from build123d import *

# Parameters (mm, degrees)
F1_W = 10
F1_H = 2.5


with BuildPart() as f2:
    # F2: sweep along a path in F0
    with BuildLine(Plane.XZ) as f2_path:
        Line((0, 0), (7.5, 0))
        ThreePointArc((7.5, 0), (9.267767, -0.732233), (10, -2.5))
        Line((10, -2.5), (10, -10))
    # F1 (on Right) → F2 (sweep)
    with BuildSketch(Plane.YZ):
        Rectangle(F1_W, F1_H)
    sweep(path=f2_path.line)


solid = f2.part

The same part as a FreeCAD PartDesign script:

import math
import FreeCAD as App
import Part
import Sketcher

V = App.Vector
Q = App.Units.Quantity


def add_polygon(sketch, points):
    """Adds a closed chain of lines whose ends are joined by coincident constraints."""
    first, n = sketch.GeometryCount, len(points)
    for a, b in zip(points, points[1:] + points[:1]):
        sketch.addGeometry(Part.LineSegment(App.Vector(*a, 0), App.Vector(*b, 0)), False)
    for i in range(n):
        sketch.addConstraint(Sketcher.Constraint("Coincident", first + i, 2, first + (i + 1) % n, 1))

doc = App.newDocument("Part")
body = doc.addObject("PartDesign::Body", "Body")

# Sketch on YZ plane
sketch1 = body.newObject("Sketcher::SketchObject", "Sketch")
sketch1.AttachmentSupport = (doc.getObject("YZ_Plane"), [""])
sketch1.MapMode = "FlatFace"
add_polygon(sketch1, [(-5, 1.2), (-5, -1.2), (5, -1.2), (5, 1.2)])  # lines 0-3
sketch1.addConstraint([
    Sketcher.Constraint("Vertical", 0),
    Sketcher.Constraint("Horizontal", 1),
    Sketcher.Constraint("Vertical", 2),
    Sketcher.Constraint("Horizontal", 3),
    Sketcher.Constraint("Symmetric", 0, 2, 2, 2, -1, 1),
    Sketcher.Constraint("DistanceX", 1, 1, 1, 2, Q("10 mm")),
    Sketcher.Constraint("DistanceY", 0, 2, 0, 1, Q("2.5 mm")),
])

# Sketch on XZ plane
sketch2 = body.newObject("Sketcher::SketchObject", "Sketch001")
sketch2.AttachmentSupport = (doc.getObject("XZ_Plane"), [""])
sketch2.MapMode = "FlatFace"
sketch2.addGeometry([
    Part.LineSegment(V(0, 0, 0), V(7.5, 0, 0)),
    Part.ArcOfCircle(Part.Circle(V(7.5, -2.5, 0), V(0, 0, 1), 2.5), math.radians(0), math.radians(90)),
    Part.LineSegment(V(10, -2.5, 0), V(10, -10, 0)),
], False)
sketch2.addConstraint([
    Sketcher.Constraint("Tangent", 0, 2, 1, 2),
    Sketcher.Constraint("Tangent", 1, 1, 2, 1),
    Sketcher.Constraint("Horizontal", 0),
    Sketcher.Constraint("Vertical", 2),
    Sketcher.Constraint("Coincident", 0, 1, -1, 1),
    Sketcher.Constraint("Equal", 0, 2),
    Sketcher.Constraint("Radius", 1, Q("2.5 mm")),
    Sketcher.Constraint("DistanceX", 0, 1, 0, 2, Q("7.5 mm")),
])
doc.recompute()

additivepipe = body.newObject("PartDesign::AdditivePipe", "AdditivePipe")
additivepipe.Profile = sketch1
additivepipe.Spine = (sketch2, ["Edge1", "Edge2", "Edge3"])

doc.recompute()
